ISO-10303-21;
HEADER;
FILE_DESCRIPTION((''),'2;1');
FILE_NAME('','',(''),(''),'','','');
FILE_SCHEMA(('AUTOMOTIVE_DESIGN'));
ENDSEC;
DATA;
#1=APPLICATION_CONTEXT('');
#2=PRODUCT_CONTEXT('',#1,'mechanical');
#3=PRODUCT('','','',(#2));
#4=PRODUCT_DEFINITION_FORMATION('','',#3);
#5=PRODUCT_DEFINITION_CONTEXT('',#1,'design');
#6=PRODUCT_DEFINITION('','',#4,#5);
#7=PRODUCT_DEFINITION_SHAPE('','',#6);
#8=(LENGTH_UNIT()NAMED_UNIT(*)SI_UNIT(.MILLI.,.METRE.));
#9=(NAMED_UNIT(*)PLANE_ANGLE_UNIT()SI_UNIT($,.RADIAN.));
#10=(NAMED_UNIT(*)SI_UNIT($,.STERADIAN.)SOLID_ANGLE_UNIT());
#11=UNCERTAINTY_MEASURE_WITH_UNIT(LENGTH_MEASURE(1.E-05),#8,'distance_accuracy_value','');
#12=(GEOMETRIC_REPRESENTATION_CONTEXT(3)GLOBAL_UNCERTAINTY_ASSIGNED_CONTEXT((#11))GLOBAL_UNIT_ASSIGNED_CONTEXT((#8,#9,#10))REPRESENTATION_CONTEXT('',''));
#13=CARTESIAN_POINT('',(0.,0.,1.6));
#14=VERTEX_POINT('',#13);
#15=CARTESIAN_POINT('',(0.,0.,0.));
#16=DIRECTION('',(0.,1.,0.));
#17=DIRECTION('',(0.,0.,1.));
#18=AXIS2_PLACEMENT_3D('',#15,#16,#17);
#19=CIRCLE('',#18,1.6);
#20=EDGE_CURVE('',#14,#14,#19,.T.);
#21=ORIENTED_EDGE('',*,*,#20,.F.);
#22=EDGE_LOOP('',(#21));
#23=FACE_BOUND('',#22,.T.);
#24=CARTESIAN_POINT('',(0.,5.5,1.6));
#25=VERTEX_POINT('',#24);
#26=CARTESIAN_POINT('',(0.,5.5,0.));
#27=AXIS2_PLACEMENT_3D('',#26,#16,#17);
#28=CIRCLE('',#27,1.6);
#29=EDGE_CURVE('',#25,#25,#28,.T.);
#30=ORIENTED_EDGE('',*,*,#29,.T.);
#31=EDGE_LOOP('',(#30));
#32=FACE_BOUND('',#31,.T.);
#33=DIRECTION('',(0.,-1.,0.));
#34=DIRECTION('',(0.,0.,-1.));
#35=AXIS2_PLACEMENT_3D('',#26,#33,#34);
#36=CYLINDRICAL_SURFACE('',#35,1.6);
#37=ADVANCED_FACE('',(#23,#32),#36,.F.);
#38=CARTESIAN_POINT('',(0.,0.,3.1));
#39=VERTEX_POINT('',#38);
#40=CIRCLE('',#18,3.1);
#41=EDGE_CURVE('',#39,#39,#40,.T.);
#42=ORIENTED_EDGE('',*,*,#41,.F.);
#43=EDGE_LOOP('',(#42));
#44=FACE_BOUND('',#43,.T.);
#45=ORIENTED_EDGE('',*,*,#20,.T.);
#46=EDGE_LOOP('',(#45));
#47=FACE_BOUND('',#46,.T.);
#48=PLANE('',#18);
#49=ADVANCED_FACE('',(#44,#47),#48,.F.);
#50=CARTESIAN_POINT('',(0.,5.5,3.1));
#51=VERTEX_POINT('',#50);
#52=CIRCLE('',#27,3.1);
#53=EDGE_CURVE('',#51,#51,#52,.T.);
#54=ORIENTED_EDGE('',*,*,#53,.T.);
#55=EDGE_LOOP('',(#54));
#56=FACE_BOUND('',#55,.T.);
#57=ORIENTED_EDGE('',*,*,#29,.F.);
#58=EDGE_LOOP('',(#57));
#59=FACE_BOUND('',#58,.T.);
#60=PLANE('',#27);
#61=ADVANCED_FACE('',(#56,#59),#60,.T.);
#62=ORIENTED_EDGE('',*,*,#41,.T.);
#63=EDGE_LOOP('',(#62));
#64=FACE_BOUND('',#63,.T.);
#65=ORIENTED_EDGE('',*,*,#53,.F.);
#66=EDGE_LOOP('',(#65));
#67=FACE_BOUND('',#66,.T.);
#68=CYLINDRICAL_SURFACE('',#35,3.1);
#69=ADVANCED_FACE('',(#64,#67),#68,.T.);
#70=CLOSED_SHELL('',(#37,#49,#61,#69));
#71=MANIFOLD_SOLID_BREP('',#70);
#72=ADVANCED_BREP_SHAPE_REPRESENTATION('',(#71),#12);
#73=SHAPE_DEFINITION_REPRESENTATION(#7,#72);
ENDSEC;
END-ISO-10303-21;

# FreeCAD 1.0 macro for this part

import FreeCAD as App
import Part
import Sketcher

doc = App.newDocument("Part")
body = doc.addObject("PartDesign::Body", "Body")

sketch1 = doc.addObject("Sketcher::SketchObject", "Sketch")
body.addObject(sketch1)
sketch1.AttachmentSupport = (doc.XZ_Plane, [""])
sketch1.MapMode = "FlatFace"
sketch1.addGeometry(Part.Circle(App.Vector(0, 0, 0), App.Vector(0, 0, 1), 3.1), False)
sketch1.addGeometry(Part.Circle(App.Vector(0, 0, 0), App.Vector(0, 0, 1), 1.6), False)
sketch1.addConstraint(Sketcher.Constraint("Coincident", 0, 3, -1, 1))
sketch1.addConstraint(Sketcher.Constraint("Coincident", 1, 3, -1, 1))
sketch1.addConstraint(Sketcher.Constraint("Diameter", 0, 6.2))
sketch1.addConstraint(Sketcher.Constraint("Diameter", 1, 3.2))
pad1 = doc.addObject("PartDesign::Pad", "Pad")
body.addObject(pad1)
pad1.Profile = sketch1
pad1.Length = 5.5
pad1.Reversed = True

doc.recompute()
